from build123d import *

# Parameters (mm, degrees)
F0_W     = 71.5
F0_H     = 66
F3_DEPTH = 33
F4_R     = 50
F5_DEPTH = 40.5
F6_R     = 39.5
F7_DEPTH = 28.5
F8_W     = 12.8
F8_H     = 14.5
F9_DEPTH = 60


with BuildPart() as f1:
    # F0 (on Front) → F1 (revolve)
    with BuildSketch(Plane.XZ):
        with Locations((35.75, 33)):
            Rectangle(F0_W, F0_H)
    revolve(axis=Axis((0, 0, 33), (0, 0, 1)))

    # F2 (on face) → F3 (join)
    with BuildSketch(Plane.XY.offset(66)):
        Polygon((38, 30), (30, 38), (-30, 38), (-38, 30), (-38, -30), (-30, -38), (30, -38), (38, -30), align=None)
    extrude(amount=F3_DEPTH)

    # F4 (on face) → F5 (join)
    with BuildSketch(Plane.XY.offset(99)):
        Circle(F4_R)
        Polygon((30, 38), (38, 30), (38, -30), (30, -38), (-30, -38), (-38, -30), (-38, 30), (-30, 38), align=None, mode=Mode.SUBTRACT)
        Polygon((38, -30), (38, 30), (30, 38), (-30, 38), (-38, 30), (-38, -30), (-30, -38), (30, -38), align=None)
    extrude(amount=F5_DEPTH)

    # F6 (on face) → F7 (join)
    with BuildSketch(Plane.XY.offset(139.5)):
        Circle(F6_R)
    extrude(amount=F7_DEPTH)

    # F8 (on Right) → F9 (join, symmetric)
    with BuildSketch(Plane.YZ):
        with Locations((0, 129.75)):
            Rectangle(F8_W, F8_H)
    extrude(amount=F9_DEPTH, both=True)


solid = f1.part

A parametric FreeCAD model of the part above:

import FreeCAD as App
import Part
import Sketcher
from FreeCAD import Vector

doc = App.newDocument("Part")
body = doc.addObject("PartDesign::Body", "Body")

# Sketch on XZ plane
sketch1 = body.newObject("Sketcher::SketchObject", "Sketch")
sketch1.AttachmentSupport = (doc.getObject("XZ_Plane"), [""])
sketch1.MapMode = "FlatFace"
sketch1.addGeometry([
    Part.LineSegment(Vector(0, 66, 0), Vector(0, 0, 0)),
    Part.LineSegment(Vector(0, 0, 0), Vector(72, 0, 0)),
    Part.LineSegment(Vector(72, 0, 0), Vector(72, 66, 0)),
    Part.LineSegment(Vector(72, 66, 0), Vector(0, 66, 0)),
], False)
sketch1.addConstraint([
    Sketcher.Constraint("Coincident", 0, 2, 1, 1),
    Sketcher.Constraint("Coincident", 1, 2, 2, 1),
    Sketcher.Constraint("Coincident", 2, 2, 3, 1),
    Sketcher.Constraint("Coincident", 3, 2, 0, 1),
    Sketcher.Constraint("Vertical", 0),
    Sketcher.Constraint("Horizontal", 1),
    Sketcher.Constraint("Vertical", 2),
    Sketcher.Constraint("Horizontal", 3),
    Sketcher.Constraint("Coincident", 0, 2, -1, 1),
    Sketcher.Constraint("DistanceY", 0, 2, 0, 1, 66.0),
    Sketcher.Constraint("DistanceX", 1, 1, 1, 2, 71.5),
])
revolution = body.newObject("PartDesign::Revolution", "Revolution")
revolution.Profile = sketch1
revolution.ReferenceAxis = (sketch1, ["V_Axis"])
revolution.Angle = 360

# Sketch on XY plane
sketch2 = body.newObject("Sketcher::SketchObject", "Sketch001")
sketch2.AttachmentSupport = (doc.getObject("XY_Plane"), [""])
sketch2.MapMode = "FlatFace"
sketch2.AttachmentOffset = App.Placement(Vector(0, 0, 66), App.Rotation())
sketch2.addGeometry([
    Part.LineSegment(Vector(38, 30, 0), Vector(30, 38, 0)),  # 0
    Part.LineSegment(Vector(30, 38, 0), Vector(-30, 38, 0)),  # 1
    Part.LineSegment(Vector(-30, 38, 0), Vector(-38, 30, 0)),  # 2
    Part.LineSegment(Vector(-38, 30, 0), Vector(-38, -30, 0)),  # 3
    Part.LineSegment(Vector(-38, -30, 0), Vector(-30, -38, 0)),  # 4
    Part.LineSegment(Vector(-30, -38, 0), Vector(30, -38, 0)),  # 5
    Part.LineSegment(Vector(30, -38, 0), Vector(38, -30, 0)),  # 6
    Part.LineSegment(Vector(38, -30, 0), Vector(38, 30, 0)),  # 7
], False)
sketch2.addConstraint([
    Sketcher.Constraint("Coincident", 0, 2, 1, 1),
    Sketcher.Constraint("Coincident", 1, 2, 2, 1),
    Sketcher.Constraint("Coincident", 2, 2, 3, 1),
    Sketcher.Constraint("Coincident", 3, 2, 4, 1),
    Sketcher.Constraint("Coincident", 4, 2, 5, 1),
    Sketcher.Constraint("Coincident", 5, 2, 6, 1),
    Sketcher.Constraint("Coincident", 6, 2, 7, 1),
    Sketcher.Constraint("Coincident", 7, 2, 0, 1),
    Sketcher.Constraint("Horizontal", 1),
    Sketcher.Constraint("Vertical", 3),
    Sketcher.Constraint("Horizontal", 5),
    Sketcher.Constraint("Vertical", 7),
    Sketcher.Constraint("Symmetric", 0, 2, 4, 2, -1, 1),
    Sketcher.Constraint("Symmetric", 2, 2, 6, 2, -1, 1),
    Sketcher.Constraint("Perpendicular", 0, 2),
    Sketcher.Constraint("Perpendicular", 2, 4),
    Sketcher.Constraint("Perpendicular", 4, 6),
    Sketcher.Constraint("Horizontal", 3, 2, 6, 2),
    Sketcher.Constraint("Vertical", 1, 2, 4, 2),
    Sketcher.Constraint("Equal", 5, 3),
    Sketcher.Constraint("DistanceX", 1, 2, 1, 1, 60.0),
    Sketcher.Constraint("DistanceY", -1, 1, 0, 2, 38.0),
])
pad1 = body.newObject("PartDesign::Pad", "Pad")
pad1.Profile = sketch2
pad1.Length = 33

# Sketch on XY plane
sketch3 = body.newObject("Sketcher::SketchObject", "Sketch002")
sketch3.AttachmentSupport = (doc.getObject("XY_Plane"), [""])
sketch3.MapMode = "FlatFace"
sketch3.AttachmentOffset = App.Placement(Vector(0, 0, 99), App.Rotation())
sketch3.addGeometry(Part.Circle(Vector(0, 0, 0), Vector(0, 0, 1), 50), False)
sketch3.addConstraint([
    Sketcher.Constraint("Coincident", 0, 3, -1, 1),
    Sketcher.Constraint("Diameter", 0, 100.0),
])
pad2 = body.newObject("PartDesign::Pad", "Pad001")
pad2.Profile = sketch3
pad2.Length = 40.5

# Sketch on XY plane
sketch4 = body.newObject("Sketcher::SketchObject", "Sketch003")
sketch4.AttachmentSupport = (doc.getObject("XY_Plane"), [""])
sketch4.MapMode = "FlatFace"
sketch4.AttachmentOffset = App.Placement(Vector(0, 0, 139.5), App.Rotation())
sketch4.addGeometry(Part.Circle(Vector(0, 0, 0), Vector(0, 0, 1), 40), False)
sketch4.addConstraint([
    Sketcher.Constraint("Coincident", 0, 3, -1, 1),
    Sketcher.Constraint("Diameter", 0, 79.0),
])
pad3 = body.newObject("PartDesign::Pad", "Pad002")
pad3.Profile = sketch4
pad3.Length = 28.5

# Sketch on YZ plane
sketch5 = body.newObject("Sketcher::SketchObject", "Sketch004")
sketch5.AttachmentSupport = (doc.getObject("YZ_Plane"), [""])
sketch5.MapMode = "FlatFace"
sketch5.addGeometry([
    Part.LineSegment(Vector(-6, 137, 0), Vector(-6, 122, 0)),
    Part.LineSegment(Vector(-6, 122, 0), Vector(6, 122, 0)),
    Part.LineSegment(Vector(6, 122, 0), Vector(6, 137, 0)),
    Part.LineSegment(Vector(6, 137, 0), Vector(-6, 137, 0)),
], False)
sketch5.addConstraint([
    Sketcher.Constraint("Coincident", 0, 2, 1, 1),
    Sketcher.Constraint("Coincident", 1, 2, 2, 1),
    Sketcher.Constraint("Coincident", 2, 2, 3, 1),
    Sketcher.Constraint("Coincident", 3, 2, 0, 1),
    Sketcher.Constraint("Vertical", 0),
    Sketcher.Constraint("Horizontal", 1),
    Sketcher.Constraint("Vertical", 2),
    Sketcher.Constraint("Horizontal", 3),
    Sketcher.Constraint("DistanceX", 1, 1, 1, 2, 12.8),
    Sketcher.Constraint("DistanceY", 0, 2, 0, 1, 14.5),
    Sketcher.Constraint("DistanceY", -1, 1, 2, 2, 137.0),
    Sketcher.Constraint("DistanceX", 0, 2, -1, 1, 6.4),
])
pad4 = body.newObject("PartDesign::Pad", "Pad003")
pad4.Profile = sketch5
pad4.Length = 120
pad4.Midplane = True

doc.recompute()
